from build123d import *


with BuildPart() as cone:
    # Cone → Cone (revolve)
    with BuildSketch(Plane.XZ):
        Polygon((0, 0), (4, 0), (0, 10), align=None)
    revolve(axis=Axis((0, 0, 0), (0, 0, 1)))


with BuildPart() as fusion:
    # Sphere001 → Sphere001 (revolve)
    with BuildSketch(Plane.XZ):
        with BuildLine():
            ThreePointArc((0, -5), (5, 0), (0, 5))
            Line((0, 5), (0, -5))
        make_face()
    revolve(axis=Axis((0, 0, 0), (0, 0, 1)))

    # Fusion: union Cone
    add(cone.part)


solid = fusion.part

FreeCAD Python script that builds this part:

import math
import FreeCAD as App
import Part
import Sketcher
from FreeCAD import Vector
Q = App.Units.Quantity

doc = App.newDocument("Part")
body = doc.addObject("PartDesign::Body", "Body")

# Sketch on XZ plane
sketch1 = body.newObject("Sketcher::SketchObject", "Sketch")
sketch1.AttachmentSupport = (doc.getObject("XZ_Plane"), [""])
sketch1.MapMode = "FlatFace"
sketch1.addGeometry(Part.LineSegment(Vector(0, 0, 0), Vector(4, 0, 0)), False)
sketch1.addGeometry(Part.LineSegment(Vector(4, 0, 0), Vector(0, 10, 0)), False)
sketch1.addGeometry(Part.LineSegment(Vector(0, 10, 0), Vector(0, 0, 0)), False)
sketch1.addConstraint(Sketcher.Constraint("Coincident", 0, 2, 1, 1))
sketch1.addConstraint(Sketcher.Constraint("Coincident", 1, 2, 2, 1))
sketch1.addConstraint(Sketcher.Constraint("Coincident", 2, 2, 0, 1))
sketch1.addConstraint(Sketcher.Constraint("Horizontal", 0))
sketch1.addConstraint(Sketcher.Constraint("Vertical", 2))
sketch1.addConstraint(Sketcher.Constraint("Coincident", 2, 2, -1, 1))
sketch1.addConstraint(Sketcher.Constraint("DistanceX", 0, 1, 0, 2, Q("4 mm")))
sketch1.addConstraint(Sketcher.Constraint("DistanceY", 2, 2, 2, 1, Q("10 mm")))
revolution = body.newObject("PartDesign::Revolution", "Revolution")
revolution.Profile = sketch1
revolution.ReferenceAxis = (sketch1, ["V_Axis"])
revolution.Angle = 360
body2 = doc.addObject("PartDesign::Body", "Body001")

# Sketch on XZ plane
sketch2 = body2.newObject("Sketcher::SketchObject", "Sketch001")
sketch2.AttachmentSupport = (doc.getObject("XZ_Plane001"), [""])
sketch2.MapMode = "FlatFace"
sketch2.addGeometry(Part.ArcOfCircle(Part.Circle(Vector(0, 0, 0), Vector(0, 0, 1), 5), math.radians(-90), math.radians(90)), False)
sketch2.addGeometry(Part.LineSegment(Vector(0, 5, 0), Vector(0, -5, 0)), False)
sketch2.addConstraint(Sketcher.Constraint("Coincident", 0, 1, 1, 2))
sketch2.addConstraint(Sketcher.Constraint("Coincident", 1, 1, 0, 2))
sketch2.addConstraint(Sketcher.Constraint("Vertical", 1))
sketch2.addConstraint(Sketcher.Constraint("Coincident", 0, 3, -1, 1))
sketch2.addConstraint(Sketcher.Constraint("PointOnObject", 0, 1, -2))
sketch2.addConstraint(Sketcher.Constraint("Radius", 0, Q("5 mm")))
revolution2 = body2.newObject("PartDesign::Revolution", "Revolution001")
revolution2.Profile = sketch2
revolution2.ReferenceAxis = (sketch2, ["V_Axis"])
revolution2.Angle = 360
doc.recompute()

boolean = body2.newObject("PartDesign::Boolean", "Boolean")
boolean.Type = "Fuse"
boolean.addObjects([body])

doc.recompute()
